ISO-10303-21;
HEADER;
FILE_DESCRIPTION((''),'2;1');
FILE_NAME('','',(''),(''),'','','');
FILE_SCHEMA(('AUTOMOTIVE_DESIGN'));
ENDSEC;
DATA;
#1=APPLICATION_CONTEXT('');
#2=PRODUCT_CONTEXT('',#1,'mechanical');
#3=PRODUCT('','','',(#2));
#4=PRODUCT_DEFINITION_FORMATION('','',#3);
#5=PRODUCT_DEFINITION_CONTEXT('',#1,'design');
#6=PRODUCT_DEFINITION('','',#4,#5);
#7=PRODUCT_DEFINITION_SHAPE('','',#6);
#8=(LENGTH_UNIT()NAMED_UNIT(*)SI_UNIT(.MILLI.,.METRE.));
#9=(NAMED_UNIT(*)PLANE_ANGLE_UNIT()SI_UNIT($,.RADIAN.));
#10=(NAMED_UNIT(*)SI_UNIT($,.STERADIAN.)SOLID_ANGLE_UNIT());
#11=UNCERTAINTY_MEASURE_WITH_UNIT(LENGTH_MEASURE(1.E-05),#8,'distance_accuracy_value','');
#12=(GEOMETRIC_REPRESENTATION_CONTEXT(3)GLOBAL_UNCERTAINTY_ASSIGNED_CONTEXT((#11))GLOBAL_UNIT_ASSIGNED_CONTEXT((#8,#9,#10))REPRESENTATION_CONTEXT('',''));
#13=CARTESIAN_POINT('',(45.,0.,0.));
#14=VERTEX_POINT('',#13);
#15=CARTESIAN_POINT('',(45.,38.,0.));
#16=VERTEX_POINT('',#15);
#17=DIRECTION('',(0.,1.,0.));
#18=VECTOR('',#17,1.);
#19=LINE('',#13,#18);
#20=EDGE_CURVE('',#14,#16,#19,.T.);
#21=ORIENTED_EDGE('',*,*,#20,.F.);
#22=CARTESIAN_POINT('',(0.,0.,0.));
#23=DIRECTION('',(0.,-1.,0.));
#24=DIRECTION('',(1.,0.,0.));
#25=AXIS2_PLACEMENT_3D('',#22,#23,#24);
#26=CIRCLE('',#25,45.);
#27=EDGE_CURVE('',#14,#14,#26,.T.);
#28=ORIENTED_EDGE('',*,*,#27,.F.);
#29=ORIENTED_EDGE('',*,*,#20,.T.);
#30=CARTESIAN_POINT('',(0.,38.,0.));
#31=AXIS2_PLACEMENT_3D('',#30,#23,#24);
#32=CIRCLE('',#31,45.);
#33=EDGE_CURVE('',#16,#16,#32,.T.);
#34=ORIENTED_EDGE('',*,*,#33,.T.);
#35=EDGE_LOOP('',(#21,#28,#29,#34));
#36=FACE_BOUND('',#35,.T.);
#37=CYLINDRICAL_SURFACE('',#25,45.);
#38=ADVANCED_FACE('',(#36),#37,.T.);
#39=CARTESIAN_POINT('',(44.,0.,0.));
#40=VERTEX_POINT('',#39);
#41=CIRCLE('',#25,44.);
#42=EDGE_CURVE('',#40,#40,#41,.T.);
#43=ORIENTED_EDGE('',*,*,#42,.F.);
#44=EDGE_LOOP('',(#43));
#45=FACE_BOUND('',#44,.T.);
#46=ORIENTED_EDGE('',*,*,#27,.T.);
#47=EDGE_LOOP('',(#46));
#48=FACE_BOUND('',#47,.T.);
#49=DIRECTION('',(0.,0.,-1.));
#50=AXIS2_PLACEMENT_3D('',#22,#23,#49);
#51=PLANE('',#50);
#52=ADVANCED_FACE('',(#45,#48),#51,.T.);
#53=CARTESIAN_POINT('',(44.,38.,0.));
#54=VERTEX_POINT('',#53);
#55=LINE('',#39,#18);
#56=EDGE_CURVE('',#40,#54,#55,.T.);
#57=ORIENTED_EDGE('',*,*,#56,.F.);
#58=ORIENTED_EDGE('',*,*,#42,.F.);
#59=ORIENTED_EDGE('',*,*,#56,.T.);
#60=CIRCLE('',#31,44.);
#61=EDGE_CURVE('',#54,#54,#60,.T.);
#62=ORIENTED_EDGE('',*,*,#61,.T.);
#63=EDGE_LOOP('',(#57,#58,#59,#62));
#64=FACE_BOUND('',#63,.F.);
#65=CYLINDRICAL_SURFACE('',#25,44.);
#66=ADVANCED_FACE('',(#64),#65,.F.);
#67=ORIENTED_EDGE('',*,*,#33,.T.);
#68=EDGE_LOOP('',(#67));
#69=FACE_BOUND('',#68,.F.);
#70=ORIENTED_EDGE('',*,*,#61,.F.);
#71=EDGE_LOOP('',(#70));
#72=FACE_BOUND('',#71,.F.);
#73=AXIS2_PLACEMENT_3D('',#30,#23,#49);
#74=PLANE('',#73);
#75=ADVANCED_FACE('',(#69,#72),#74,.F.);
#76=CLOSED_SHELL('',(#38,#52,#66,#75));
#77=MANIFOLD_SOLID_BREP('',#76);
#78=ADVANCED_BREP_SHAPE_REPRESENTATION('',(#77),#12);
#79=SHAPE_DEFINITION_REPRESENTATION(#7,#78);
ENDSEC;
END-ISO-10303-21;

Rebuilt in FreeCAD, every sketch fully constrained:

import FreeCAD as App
import Part
import Sketcher

V = App.Vector

doc = App.newDocument("Part")
body = doc.addObject("PartDesign::Body", "Body")

# Sketch on XZ plane
sketch1 = doc.addObject("Sketcher::SketchObject", "Sketch")
body.addObject(sketch1)
sketch1.AttachmentSupport = (doc.XZ_Plane, [""])
sketch1.MapMode = "FlatFace"
sketch1.addGeometry(Part.Circle(V(0, 0, 0), V(0, 0, 1), 45), False)
sketch1.addGeometry(Part.Circle(V(0, 0, 0), V(0, 0, 1), 44), False)
sketch1.addConstraint(Sketcher.Constraint("Coincident", 0, 3, -1, 1))
sketch1.addConstraint(Sketcher.Constraint("Coincident", 1, 3, -1, 1))
sketch1.addConstraint(Sketcher.Constraint("Diameter", 0, 90.0))
sketch1.addConstraint(Sketcher.Constraint("Diameter", 1, 88.0))
pad1 = doc.addObject("PartDesign::Pad", "Pad")
body.addObject(pad1)
pad1.Profile = sketch1
pad1.Length = 38
pad1.Reversed = True

doc.recompute()
